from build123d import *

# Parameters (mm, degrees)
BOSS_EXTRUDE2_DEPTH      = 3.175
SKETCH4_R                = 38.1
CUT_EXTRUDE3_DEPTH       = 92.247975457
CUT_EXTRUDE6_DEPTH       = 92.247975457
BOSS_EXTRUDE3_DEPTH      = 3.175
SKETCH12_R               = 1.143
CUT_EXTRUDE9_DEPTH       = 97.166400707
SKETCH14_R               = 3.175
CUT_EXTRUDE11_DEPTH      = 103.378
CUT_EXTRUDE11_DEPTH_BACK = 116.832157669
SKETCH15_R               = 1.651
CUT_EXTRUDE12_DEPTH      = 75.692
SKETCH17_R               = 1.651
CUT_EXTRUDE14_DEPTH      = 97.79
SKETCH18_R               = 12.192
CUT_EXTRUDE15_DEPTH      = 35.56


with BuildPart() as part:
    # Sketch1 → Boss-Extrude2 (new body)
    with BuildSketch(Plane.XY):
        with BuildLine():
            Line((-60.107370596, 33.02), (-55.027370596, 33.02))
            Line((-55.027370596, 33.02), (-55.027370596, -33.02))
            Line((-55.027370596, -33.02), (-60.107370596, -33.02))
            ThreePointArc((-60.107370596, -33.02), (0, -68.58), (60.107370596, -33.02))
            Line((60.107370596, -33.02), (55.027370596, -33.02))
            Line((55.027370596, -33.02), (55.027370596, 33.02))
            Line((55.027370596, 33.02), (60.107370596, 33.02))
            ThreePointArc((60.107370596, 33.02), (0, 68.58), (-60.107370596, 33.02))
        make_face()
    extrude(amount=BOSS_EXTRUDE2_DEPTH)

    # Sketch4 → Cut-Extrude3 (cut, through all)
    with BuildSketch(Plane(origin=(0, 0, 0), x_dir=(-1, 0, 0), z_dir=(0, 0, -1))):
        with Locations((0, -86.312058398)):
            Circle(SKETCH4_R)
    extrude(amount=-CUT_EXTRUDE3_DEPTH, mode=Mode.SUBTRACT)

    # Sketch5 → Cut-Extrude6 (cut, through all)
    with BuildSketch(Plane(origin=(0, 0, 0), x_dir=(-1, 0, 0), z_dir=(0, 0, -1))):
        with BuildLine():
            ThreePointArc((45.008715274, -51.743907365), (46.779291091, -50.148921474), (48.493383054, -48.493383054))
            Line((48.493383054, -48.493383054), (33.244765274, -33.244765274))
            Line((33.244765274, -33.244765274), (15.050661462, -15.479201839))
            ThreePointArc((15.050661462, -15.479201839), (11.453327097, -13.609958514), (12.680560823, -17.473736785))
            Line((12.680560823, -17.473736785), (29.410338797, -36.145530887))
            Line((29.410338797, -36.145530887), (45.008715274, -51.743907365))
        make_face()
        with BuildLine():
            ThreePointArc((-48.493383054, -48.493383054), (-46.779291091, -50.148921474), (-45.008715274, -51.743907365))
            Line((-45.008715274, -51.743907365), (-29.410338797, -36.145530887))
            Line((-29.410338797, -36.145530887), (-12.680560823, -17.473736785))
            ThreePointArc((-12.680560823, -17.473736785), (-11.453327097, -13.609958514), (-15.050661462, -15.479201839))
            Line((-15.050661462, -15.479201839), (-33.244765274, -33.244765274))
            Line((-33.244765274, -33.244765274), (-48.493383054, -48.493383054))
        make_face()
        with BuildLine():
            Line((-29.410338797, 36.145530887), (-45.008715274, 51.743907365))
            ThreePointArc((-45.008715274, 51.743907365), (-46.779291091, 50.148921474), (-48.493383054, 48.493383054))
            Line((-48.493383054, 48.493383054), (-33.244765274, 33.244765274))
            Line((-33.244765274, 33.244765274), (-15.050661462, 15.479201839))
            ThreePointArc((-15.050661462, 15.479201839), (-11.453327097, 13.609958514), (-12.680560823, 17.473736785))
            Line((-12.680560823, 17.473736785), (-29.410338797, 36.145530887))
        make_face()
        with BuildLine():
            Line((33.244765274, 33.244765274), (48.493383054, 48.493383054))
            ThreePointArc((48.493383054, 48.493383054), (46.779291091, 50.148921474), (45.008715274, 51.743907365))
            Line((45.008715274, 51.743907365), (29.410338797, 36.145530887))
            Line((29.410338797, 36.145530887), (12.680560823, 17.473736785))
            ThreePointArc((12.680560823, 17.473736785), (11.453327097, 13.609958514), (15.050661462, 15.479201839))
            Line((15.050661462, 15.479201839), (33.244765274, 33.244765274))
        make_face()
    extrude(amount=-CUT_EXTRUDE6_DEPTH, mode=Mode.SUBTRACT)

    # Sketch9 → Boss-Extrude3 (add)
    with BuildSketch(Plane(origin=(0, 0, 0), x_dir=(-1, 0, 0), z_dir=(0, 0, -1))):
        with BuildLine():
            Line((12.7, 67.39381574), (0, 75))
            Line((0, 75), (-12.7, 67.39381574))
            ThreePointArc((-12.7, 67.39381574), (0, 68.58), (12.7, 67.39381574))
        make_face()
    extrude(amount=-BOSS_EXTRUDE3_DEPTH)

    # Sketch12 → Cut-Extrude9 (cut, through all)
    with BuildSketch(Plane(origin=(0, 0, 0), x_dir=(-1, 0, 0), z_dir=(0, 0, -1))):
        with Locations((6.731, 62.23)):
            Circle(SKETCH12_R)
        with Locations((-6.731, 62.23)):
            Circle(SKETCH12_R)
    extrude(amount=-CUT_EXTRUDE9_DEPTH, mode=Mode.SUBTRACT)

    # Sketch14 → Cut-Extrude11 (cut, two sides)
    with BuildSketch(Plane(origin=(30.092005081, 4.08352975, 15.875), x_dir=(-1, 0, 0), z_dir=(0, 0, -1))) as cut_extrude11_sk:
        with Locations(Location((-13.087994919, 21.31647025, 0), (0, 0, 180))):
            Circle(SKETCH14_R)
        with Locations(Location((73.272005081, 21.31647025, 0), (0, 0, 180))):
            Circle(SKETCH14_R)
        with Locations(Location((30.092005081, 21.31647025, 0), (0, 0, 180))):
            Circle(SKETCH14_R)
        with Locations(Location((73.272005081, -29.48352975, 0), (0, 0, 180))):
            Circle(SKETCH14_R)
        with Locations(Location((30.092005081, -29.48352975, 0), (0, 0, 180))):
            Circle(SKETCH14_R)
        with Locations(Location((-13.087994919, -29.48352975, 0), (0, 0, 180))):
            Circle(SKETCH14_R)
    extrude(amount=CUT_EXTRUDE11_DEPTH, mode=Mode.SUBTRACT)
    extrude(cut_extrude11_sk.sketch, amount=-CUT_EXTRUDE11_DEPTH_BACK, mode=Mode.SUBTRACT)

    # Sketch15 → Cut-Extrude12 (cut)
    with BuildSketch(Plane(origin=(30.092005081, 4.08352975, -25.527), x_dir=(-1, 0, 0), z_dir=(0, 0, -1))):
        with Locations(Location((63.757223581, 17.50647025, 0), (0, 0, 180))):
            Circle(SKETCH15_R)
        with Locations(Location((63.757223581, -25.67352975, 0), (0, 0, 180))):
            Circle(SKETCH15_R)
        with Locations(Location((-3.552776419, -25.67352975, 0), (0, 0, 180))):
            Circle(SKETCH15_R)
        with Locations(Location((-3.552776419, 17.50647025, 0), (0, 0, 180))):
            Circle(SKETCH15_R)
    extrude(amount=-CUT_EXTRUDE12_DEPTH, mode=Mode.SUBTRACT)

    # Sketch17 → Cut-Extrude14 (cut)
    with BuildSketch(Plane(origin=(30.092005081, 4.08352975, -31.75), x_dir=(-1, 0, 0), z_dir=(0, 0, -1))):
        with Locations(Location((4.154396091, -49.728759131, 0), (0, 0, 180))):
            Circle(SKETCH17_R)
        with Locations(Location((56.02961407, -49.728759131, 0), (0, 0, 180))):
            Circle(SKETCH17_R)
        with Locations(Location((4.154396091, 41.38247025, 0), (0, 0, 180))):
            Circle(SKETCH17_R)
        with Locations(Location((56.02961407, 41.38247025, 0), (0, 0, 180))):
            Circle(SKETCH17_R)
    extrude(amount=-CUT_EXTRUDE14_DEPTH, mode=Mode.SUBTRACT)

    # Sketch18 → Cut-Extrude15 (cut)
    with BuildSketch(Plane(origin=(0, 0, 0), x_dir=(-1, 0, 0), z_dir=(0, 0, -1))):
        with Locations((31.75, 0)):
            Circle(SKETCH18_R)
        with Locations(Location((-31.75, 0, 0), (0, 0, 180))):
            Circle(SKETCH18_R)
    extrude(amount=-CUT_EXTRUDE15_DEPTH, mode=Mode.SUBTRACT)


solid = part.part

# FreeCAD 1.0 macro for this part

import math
import FreeCAD as App
import Part
import Sketcher
from FreeCAD import Vector
Q = App.Units.Quantity

doc = App.newDocument("Part")
body = doc.addObject("PartDesign::Body", "Body")

sketch1 = body.newObject("Sketcher::SketchObject", "Sketch")
sketch1.AttachmentSupport = (doc.getObject("XY_Plane"), [""])
sketch1.MapMode = "FlatFace"
sketch1.addGeometry([
    Part.LineSegment(Vector(-60.107371, 33.02, 0), Vector(-55.027371, 33.02, 0)),
    Part.LineSegment(Vector(-55.027371, 33.02, 0), Vector(-55.027371, -33.02, 0)),
    Part.LineSegment(Vector(-55.027371, -33.02, 0), Vector(-60.107371, -33.02, 0)),
    Part.ArcOfCircle(Part.Circle(Vector(0, 0, 0), Vector(0, 0, 1), 68.58), math.radians(-151.217795), math.radians(-28.782205)),
    Part.LineSegment(Vector(60.107371, -33.02, 0), Vector(55.027371, -33.02, 0)),
    Part.LineSegment(Vector(55.027371, -33.02, 0), Vector(55.027371, 33.02, 0)),
    Part.LineSegment(Vector(55.027371, 33.02, 0), Vector(60.107371, 33.02, 0)),
    Part.ArcOfCircle(Part.Circle(Vector(0, 0, 0), Vector(0, 0, 1), 68.58), math.radians(28.782205), math.radians(151.217795)),
], False)
sketch1.addConstraint([
    Sketcher.Constraint("Coincident", 0, 2, 1, 1),
    Sketcher.Constraint("Coincident", 1, 2, 2, 1),
    Sketcher.Constraint("Coincident", 2, 2, 3, 1),
    Sketcher.Constraint("Coincident", 3, 2, 4, 1),
    Sketcher.Constraint("Coincident", 4, 2, 5, 1),
    Sketcher.Constraint("Coincident", 5, 2, 6, 1),
    Sketcher.Constraint("Coincident", 6, 2, 7, 1),
    Sketcher.Constraint("Coincident", 7, 2, 0, 1),
    Sketcher.Constraint("Horizontal", 0),
    Sketcher.Constraint("Vertical", 1),
    Sketcher.Constraint("Horizontal", 2),
    Sketcher.Constraint("Horizontal", 4),
    Sketcher.Constraint("Vertical", 5),
    Sketcher.Constraint("Horizontal", 6),
    Sketcher.Constraint("Coincident", 3, 3, -1, 1),
    Sketcher.Constraint("Coincident", 7, 3, -1, 1),
    Sketcher.Constraint("Equal", 3, 7),
    Sketcher.Constraint("Symmetric", 0, 2, 4, 2, -1, 1),
    Sketcher.Constraint("Horizontal", 2, 2, 3, 2),
    Sketcher.Constraint("Horizontal", 0, 2, 5, 2),
    Sketcher.Constraint("Radius", 3, Q("2.7 in")),
    Sketcher.Constraint("DistanceX", 0, 1, 0, 2, Q("0.2 in")),
    Sketcher.Constraint("DistanceY", 1, 2, 1, 1, Q("2.6 in")),
])
pad1 = body.newObject("PartDesign::Pad", "Pad")
pad1.Profile = sketch1
pad1.Length = Q("0.125 in")

sketch2 = body.newObject("Sketcher::SketchObject", "Sketch001")
sketch2.AttachmentSupport = (doc.getObject("XY_Plane"), [""])
sketch2.MapMode = "FlatFace"
sketch2.addGeometry(Part.Circle(Vector(0, -86.312058, 0), Vector(0, 0, 1), 38.1), False)
sketch2.addConstraint([
    Sketcher.Constraint("PointOnObject", 0, 3, -2),
    Sketcher.Constraint("Diameter", 0, Q("3 in")),
    Sketcher.Constraint("DistanceY", 0, 3, -1, 1, 86.312058),
])
pocket1 = body.newObject("PartDesign::Pocket", "Pocket")
pocket1.Profile = sketch2
pocket1.Type = "ThroughAll"
pocket1.Reversed = True

sketch3 = body.newObject("Sketcher::SketchObject", "Sketch002")
sketch3.AttachmentSupport = (doc.getObject("XY_Plane"), [""])
sketch3.MapMode = "FlatFace"
sketch3.addGeometry([
    Part.ArcOfCircle(Part.Circle(Vector(0, 0, 0), Vector(0, 0, 1), 68.580001), math.radians(-135), math.radians(-131.017921)),
    Part.LineSegment(Vector(-48.493383, -48.493383, 0), Vector(-33.244765, -33.244765, 0)),
    Part.LineSegment(Vector(-33.244765, -33.244765, 0), Vector(-15.050661, -15.479202, 0)),
    Part.ArcOfCircle(Part.Circle(Vector(-12.86561, -15.288171, 0), Vector(0, 0, 1), 2.193386), math.radians(-85.16037), math.radians(184.996452)),
    Part.LineSegment(Vector(-12.680561, -17.473737, 0), Vector(-29.410339, -36.145531, 0)),
    Part.LineSegment(Vector(-29.410339, -36.145531, 0), Vector(-45.008715, -51.743907, 0)),
    Part.ArcOfCircle(Part.Circle(Vector(0, 0, 0), Vector(0, 0, 1), 68.580001), math.radians(-48.982079), math.radians(-45)),
    Part.LineSegment(Vector(45.008715, -51.743907, 0), Vector(29.410339, -36.145531, 0)),
    Part.LineSegment(Vector(29.410339, -36.145531, 0), Vector(12.680561, -17.473737, 0)),
    Part.ArcOfCircle(Part.Circle(Vector(12.86561, -15.288171, 0), Vector(0, 0, 1), 2.193386), math.radians(-4.996452), math.radians(265.16037)),
    Part.LineSegment(Vector(15.050661, -15.479202, 0), Vector(33.244765, -33.244765, 0)),
    Part.LineSegment(Vector(33.244765, -33.244765, 0), Vector(48.493383, -48.493383, 0)),
    Part.LineSegment(Vector(29.410339, 36.145531, 0), Vector(45.008715, 51.743907, 0)),
    Part.ArcOfCircle(Part.Circle(Vector(0, 0, 0), Vector(0, 0, 1), 68.580001), math.radians(45), math.radians(48.982079)),
    Part.LineSegment(Vector(48.493383, 48.493383, 0), Vector(33.244765, 33.244765, 0)),
    Part.LineSegment(Vector(33.244765, 33.244765, 0), Vector(15.050661, 15.479202, 0)),
    Part.ArcOfCircle(Part.Circle(Vector(12.86561, 15.288171, 0), Vector(0, 0, 1), 2.193386), math.radians(94.83963), math.radians(364.996452)),
    Part.LineSegment(Vector(12.680561, 17.473737, 0), Vector(29.410339, 36.145531, 0)),
    Part.LineSegment(Vector(-33.244765, 33.244765, 0), Vector(-48.493383, 48.493383, 0)),
    Part.ArcOfCircle(Part.Circle(Vector(0, 0, 0), Vector(0, 0, 1), 68.580001), math.radians(131.017921), math.radians(135)),
    Part.LineSegment(Vector(-45.008715, 51.743907, 0), Vector(-29.410339, 36.145531, 0)),
    Part.LineSegment(Vector(-29.410339, 36.145531, 0), Vector(-12.680561, 17.473737, 0)),
    Part.ArcOfCircle(Part.Circle(Vector(-12.86561, 15.288171, 0), Vector(0, 0, 1), 2.193386), math.radians(175.003548), math.radians(445.16037)),
    Part.LineSegment(Vector(-15.050661, 15.479202, 0), Vector(-33.244765, 33.244765, 0)),
], False)
sketch3.addConstraint([
    Sketcher.Constraint("Coincident", 0, 1, 1, 1),
    Sketcher.Constraint("Coincident", 1, 2, 2, 1),
    Sketcher.Constraint("Coincident", 2, 2, 3, 2),
    Sketcher.Constraint("Coincident", 3, 1, 4, 1),
    Sketcher.Constraint("Coincident", 4, 2, 5, 1),
    Sketcher.Constraint("Coincident", 5, 2, 0, 2),
    Sketcher.Constraint("Coincident", 6, 1, 7, 1),
    Sketcher.Constraint("Coincident", 7, 2, 8, 1),
    Sketcher.Constraint("Coincident", 8, 2, 9, 2),
    Sketcher.Constraint("Coincident", 9, 1, 10, 1),
    Sketcher.Constraint("Coincident", 10, 2, 11, 1),
    Sketcher.Constraint("Coincident", 11, 2, 6, 2),
    Sketcher.Constraint("Coincident", 12, 2, 13, 2),
    Sketcher.Constraint("Coincident", 13, 1, 14, 1),
    Sketcher.Constraint("Coincident", 14, 2, 15, 1),
    Sketcher.Constraint("Coincident", 15, 2, 16, 2),
    Sketcher.Constraint("Coincident", 16, 1, 17, 1),
    Sketcher.Constraint("Coincident", 17, 2, 12, 1),
    Sketcher.Constraint("Coincident", 18, 2, 19, 2),
    Sketcher.Constraint("Coincident", 19, 1, 20, 1),
    Sketcher.Constraint("Coincident", 20, 2, 21, 1),
    Sketcher.Constraint("Coincident", 21, 2, 22, 2),
    Sketcher.Constraint("Coincident", 22, 1, 23, 1),
    Sketcher.Constraint("Coincident", 23, 2, 18, 1),
    Sketcher.Constraint("Coincident", 0, 3, -1, 1),
    Sketcher.Constraint("Coincident", 6, 3, -1, 1),
    Sketcher.Constraint("Coincident", 13, 3, -1, 1),
    Sketcher.Constraint("Coincident", 19, 3, -1, 1),
    Sketcher.Constraint("Equal", 0, 6),
    Sketcher.Constraint("Equal", 3, 9),
    Sketcher.Constraint("Equal", 6, 13),
    Sketcher.Constraint("Equal", 9, 16),
    Sketcher.Constraint("Equal", 13, 19),
    Sketcher.Constraint("Equal", 16, 22),
    Sketcher.Constraint("Symmetric", 3, 3, 16, 3, -1, 1),
    Sketcher.Constraint("Symmetric", 9, 3, 22, 3, -1, 1),
    Sketcher.Constraint("Symmetric", 1, 2, 14, 2, -1, 1),
    Sketcher.Constraint("Symmetric", 4, 2, 17, 2, -1, 1),
    Sketcher.Constraint("Symmetric", 7, 2, 20, 2, -1, 1),
    Sketcher.Constraint("Symmetric", 10, 2, 23, 2, -1, 1),
    Sketcher.Constraint("Symmetric", 3, 3, 9, 3, -2),
    Sketcher.Constraint("Symmetric", 4, 2, 7, 2, -2),
    Sketcher.Constraint("Symmetric", 1, 2, 10, 2, -2),
    Sketcher.Constraint("Parallel", 1, 5),
    Sketcher.Constraint("Perpendicular", 5, 7),
    Sketcher.Constraint("Parallel", 7, 11),
    Sketcher.Constraint("Perpendicular", 11, 12),
    Sketcher.Constraint("Parallel", 12, 14),
    Sketcher.Constraint("Parallel", 2, 15),
    Sketcher.Constraint("Parallel", 4, 17),
    Sketcher.Constraint("Perpendicular", 14, 18),
    Sketcher.Constraint("Parallel", 18, 20),
    Sketcher.Constraint("Parallel", 8, 21),
    Sketcher.Constraint("Parallel", 10, 23),
    Sketcher.Constraint("Horizontal", 5, 2, 6, 1),
    Sketcher.Constraint("Horizontal", 3, 1, 8, 2),
    Sketcher.Constraint("Horizontal", 2, 2, 9, 1),
    Sketcher.Constraint("Radius", 0, Q("2.7 in")),
    Sketcher.Constraint("Radius", 3, 2.193386),
    Sketcher.Constraint("DistanceY", 2, 2, -1, 1, 15.479202),
    Sketcher.Constraint("DistanceX", 2, 2, 3, 1, 2.370101),
    Sketcher.Constraint("DistanceX", 3, 1, 7, 2, 42.0909),
    Sketcher.Constraint("Distance", 2, 25.42913),
    Sketcher.Constraint("Distance", 4, 25.070328),
    Sketcher.Constraint("DistanceX", 3, 3, -1, 1, 12.86561),
    Sketcher.Constraint("DistanceY", 3, 3, -1, 1, 15.288171),
    Sketcher.Constraint("DistanceX", 5, 2, 1, 2, 11.76395),
])
pocket2 = body.newObject("PartDesign::Pocket", "Pocket001")
pocket2.Profile = sketch3
pocket2.Type = "ThroughAll"
pocket2.Reversed = True

sketch4 = body.newObject("Sketcher::SketchObject", "Sketch003")
sketch4.AttachmentSupport = (doc.getObject("XY_Plane"), [""])
sketch4.MapMode = "FlatFace"
sketch4.addGeometry([
    Part.LineSegment(Vector(-12.7, 67.393816, 0), Vector(0, 75, 0)),
    Part.LineSegment(Vector(0, 75, 0), Vector(12.7, 67.393816, 0)),
    Part.ArcOfCircle(Part.Circle(Vector(0, 0, 0), Vector(0, 0, 1), 68.58), math.radians(79.328071), math.radians(100.671929)),
], False)
sketch4.addConstraint([
    Sketcher.Constraint("Coincident", 0, 2, 1, 1),
    Sketcher.Constraint("Coincident", 1, 2, 2, 1),
    Sketcher.Constraint("Coincident", 2, 2, 0, 1),
    Sketcher.Constraint("Coincident", 2, 3, -1, 1),
    Sketcher.Constraint("PointOnObject", 0, 2, -2),
    Sketcher.Constraint("Horizontal", 1, 2, 2, 2),
    Sketcher.Constraint("Radius", 2, Q("2.7 in")),
    Sketcher.Constraint("DistanceX", 2, 2, 1, 2, Q("1 in")),
    Sketcher.Constraint("DistanceY", -1, 1, 0, 2, 75.0),
])
pad2 = body.newObject("PartDesign::Pad", "Pad001")
pad2.Profile = sketch4
pad2.Length = Q("0.125 in")

sketch5 = body.newObject("Sketcher::SketchObject", "Sketch004")
sketch5.AttachmentSupport = (doc.getObject("XY_Plane"), [""])
sketch5.MapMode = "FlatFace"
sketch5.addGeometry([
    Part.Circle(Vector(-6.731, 62.23, 0), Vector(0, 0, 1), 1.143),
    Part.Circle(Vector(6.731, 62.23, 0), Vector(0, 0, 1), 1.143),
], False)
sketch5.addConstraint([
    Sketcher.Constraint("Equal", 0, 1),
    Sketcher.Constraint("Symmetric", 0, 3, 1, 3, -2),
    Sketcher.Constraint("Diameter", 0, Q("0.09 in")),
    Sketcher.Constraint("DistanceY", -1, 1, 0, 3, Q("2.45 in")),
    Sketcher.Constraint("DistanceX", 0, 3, 1, 3, Q("0.53 in")),
])
pocket3 = body.newObject("PartDesign::Pocket", "Pocket002")
pocket3.Profile = sketch5
pocket3.Type = "ThroughAll"
pocket3.Reversed = True

sketch6 = body.newObject("Sketcher::SketchObject", "Sketch005")
sketch6.AttachmentSupport = (doc.getObject("XY_Plane"), [""])
sketch6.MapMode = "FlatFace"
sketch6.AttachmentOffset = App.Placement(Vector(0, 0, 0.625 * 25.4), App.Rotation())
sketch6.addGeometry([
    Part.Circle(Vector(43.18, 25.4, 0), Vector(0, 0, 1), 3.175),
    Part.Circle(Vector(-43.18, 25.4, 0), Vector(0, 0, 1), 3.175),
    Part.Circle(Vector(0, 25.4, 0), Vector(0, 0, 1), 3.175),
    Part.Circle(Vector(-43.18, -25.4, 0), Vector(0, 0, 1), 3.175),
    Part.Circle(Vector(0, -25.4, 0), Vector(0, 0, 1), 3.175),
    Part.Circle(Vector(43.18, -25.4, 0), Vector(0, 0, 1), 3.175),
], False)
sketch6.addConstraint([
    Sketcher.Constraint("Equal", 0, 1),
    Sketcher.Constraint("Equal", 1, 2),
    Sketcher.Constraint("Equal", 2, 3),
    Sketcher.Constraint("Equal", 3, 4),
    Sketcher.Constraint("Equal", 4, 5),
    Sketcher.Constraint("Symmetric", 0, 3, 3, 3, -1, 1),
    Sketcher.Constraint("Symmetric", 2, 3, 4, 3, -1, 1),
    Sketcher.Constraint("Symmetric", 1, 3, 5, 3, -1, 1),
    Sketcher.Constraint("Symmetric", 0, 3, 1, 3, -2),
    Sketcher.Constraint("PointOnObject", 2, 3, -2),
    Sketcher.Constraint("Horizontal", 1, 3, 2, 3),
    Sketcher.Constraint("Diameter", 0, Q("0.25 in")),
    Sketcher.Constraint("DistanceY", -1, 1, 0, 3, Q("1 in")),
    Sketcher.Constraint("DistanceX", -1, 1, 0, 3, Q("1.7 in")),
])
pocket4 = body.newObject("PartDesign::Pocket", "Pocket003")
pocket4.Profile = sketch6
pocket4.Type = "ThroughAll"
pocket4.Midplane = True

sketch7 = body.newObject("Sketcher::SketchObject", "Sketch006")
sketch7.AttachmentSupport = (doc.getObject("XY_Plane"), [""])
sketch7.MapMode = "FlatFace"
sketch7.AttachmentOffset = App.Placement(Vector(0, 0, -1.005 * 25.4), App.Rotation())
sketch7.addGeometry([
    Part.Circle(Vector(-33.665219, 21.59, 0), Vector(0, 0, 1), 1.651),
    Part.Circle(Vector(-33.665219, -21.59, 0), Vector(0, 0, 1), 1.651),
    Part.Circle(Vector(33.644782, -21.59, 0), Vector(0, 0, 1), 1.651),
    Part.Circle(Vector(33.644782, 21.59, 0), Vector(0, 0, 1), 1.651),
], False)
sketch7.addConstraint([
    Sketcher.Constraint("Equal", 0, 1),
    Sketcher.Constraint("Equal", 1, 2),
    Sketcher.Constraint("Equal", 2, 3),
    Sketcher.Constraint("Symmetric", 0, 3, 1, 3, -1),
    Sketcher.Constraint("Symmetric", 2, 3, 3, 3, -1),
    Sketcher.Constraint("Horizontal", 1, 3, 2, 3),
    Sketcher.Constraint("Diameter", 0, Q("0.13 in")),
    Sketcher.Constraint("DistanceY", 1, 3, 0, 3, Q("1.7 in")),
    Sketcher.Constraint("DistanceX", 1, 3, 2, 3, Q("2.65 in")),
    Sketcher.Constraint("DistanceX", 0, 3, -1, 1, 33.665219),
])
pocket5 = body.newObject("PartDesign::Pocket", "Pocket004")
pocket5.Profile = sketch7
pocket5.Length = Q("2.98 in")
pocket5.Reversed = True

sketch8 = body.newObject("Sketcher::SketchObject", "Sketch007")
sketch8.AttachmentSupport = (doc.getObject("XY_Plane"), [""])
sketch8.MapMode = "FlatFace"
sketch8.AttachmentOffset = App.Placement(Vector(0, 0, -1.25 * 25.4), App.Rotation())
sketch8.addGeometry([
    Part.Circle(Vector(25.937609, -45.645229, 0), Vector(0, 0, 1), 1.651),
    Part.Circle(Vector(-25.937609, -45.645229, 0), Vector(0, 0, 1), 1.651),
    Part.Circle(Vector(25.937609, 45.466, 0), Vector(0, 0, 1), 1.651),
    Part.Circle(Vector(-25.937609, 45.466, 0), Vector(0, 0, 1), 1.651),
], False)
sketch8.addConstraint([
    Sketcher.Constraint("Equal", 0, 1),
    Sketcher.Constraint("Equal", 1, 2),
    Sketcher.Constraint("Equal", 2, 3),
    Sketcher.Constraint("Symmetric", 0, 3, 1, 3, -2),
    Sketcher.Constraint("Symmetric", 2, 3, 3, 3, -2),
    Sketcher.Constraint("Vertical", 0, 3, 2, 3),
    Sketcher.Constraint("Diameter", 0, Q("0.13 in")),
    Sketcher.Constraint("DistanceY", -1, 1, 2, 3, Q("1.79 in")),
    Sketcher.Constraint("DistanceX", -1, 1, 0, 3, 25.937609),
    Sketcher.Constraint("DistanceY", 0, 3, -1, 1, 45.645229),
])
pocket6 = body.newObject("PartDesign::Pocket", "Pocket005")
pocket6.Profile = sketch8
pocket6.Length = Q("3.85 in")
pocket6.Reversed = True

sketch9 = body.newObject("Sketcher::SketchObject", "Sketch008")
sketch9.AttachmentSupport = (doc.getObject("XY_Plane"), [""])
sketch9.MapMode = "FlatFace"
sketch9.addGeometry([
    Part.Circle(Vector(-31.75, 0, 0), Vector(0, 0, 1), 12.192),
    Part.Circle(Vector(31.75, 0, 0), Vector(0, 0, 1), 12.192),
], False)
sketch9.addConstraint([
    Sketcher.Constraint("Equal", 0, 1),
    Sketcher.Constraint("Symmetric", 0, 3, 1, 3, -1, 1),
    Sketcher.Constraint("PointOnObject", 0, 3, -1),
    Sketcher.Constraint("Diameter", 0, Q("0.96 in")),
    Sketcher.Constraint("DistanceX", 0, 3, 1, 3, Q("2.5 in")),
])
pocket7 = body.newObject("PartDesign::Pocket", "Pocket006")
pocket7.Profile = sketch9
pocket7.Length = Q("1.4 in")
pocket7.Reversed = True

doc.recompute()
